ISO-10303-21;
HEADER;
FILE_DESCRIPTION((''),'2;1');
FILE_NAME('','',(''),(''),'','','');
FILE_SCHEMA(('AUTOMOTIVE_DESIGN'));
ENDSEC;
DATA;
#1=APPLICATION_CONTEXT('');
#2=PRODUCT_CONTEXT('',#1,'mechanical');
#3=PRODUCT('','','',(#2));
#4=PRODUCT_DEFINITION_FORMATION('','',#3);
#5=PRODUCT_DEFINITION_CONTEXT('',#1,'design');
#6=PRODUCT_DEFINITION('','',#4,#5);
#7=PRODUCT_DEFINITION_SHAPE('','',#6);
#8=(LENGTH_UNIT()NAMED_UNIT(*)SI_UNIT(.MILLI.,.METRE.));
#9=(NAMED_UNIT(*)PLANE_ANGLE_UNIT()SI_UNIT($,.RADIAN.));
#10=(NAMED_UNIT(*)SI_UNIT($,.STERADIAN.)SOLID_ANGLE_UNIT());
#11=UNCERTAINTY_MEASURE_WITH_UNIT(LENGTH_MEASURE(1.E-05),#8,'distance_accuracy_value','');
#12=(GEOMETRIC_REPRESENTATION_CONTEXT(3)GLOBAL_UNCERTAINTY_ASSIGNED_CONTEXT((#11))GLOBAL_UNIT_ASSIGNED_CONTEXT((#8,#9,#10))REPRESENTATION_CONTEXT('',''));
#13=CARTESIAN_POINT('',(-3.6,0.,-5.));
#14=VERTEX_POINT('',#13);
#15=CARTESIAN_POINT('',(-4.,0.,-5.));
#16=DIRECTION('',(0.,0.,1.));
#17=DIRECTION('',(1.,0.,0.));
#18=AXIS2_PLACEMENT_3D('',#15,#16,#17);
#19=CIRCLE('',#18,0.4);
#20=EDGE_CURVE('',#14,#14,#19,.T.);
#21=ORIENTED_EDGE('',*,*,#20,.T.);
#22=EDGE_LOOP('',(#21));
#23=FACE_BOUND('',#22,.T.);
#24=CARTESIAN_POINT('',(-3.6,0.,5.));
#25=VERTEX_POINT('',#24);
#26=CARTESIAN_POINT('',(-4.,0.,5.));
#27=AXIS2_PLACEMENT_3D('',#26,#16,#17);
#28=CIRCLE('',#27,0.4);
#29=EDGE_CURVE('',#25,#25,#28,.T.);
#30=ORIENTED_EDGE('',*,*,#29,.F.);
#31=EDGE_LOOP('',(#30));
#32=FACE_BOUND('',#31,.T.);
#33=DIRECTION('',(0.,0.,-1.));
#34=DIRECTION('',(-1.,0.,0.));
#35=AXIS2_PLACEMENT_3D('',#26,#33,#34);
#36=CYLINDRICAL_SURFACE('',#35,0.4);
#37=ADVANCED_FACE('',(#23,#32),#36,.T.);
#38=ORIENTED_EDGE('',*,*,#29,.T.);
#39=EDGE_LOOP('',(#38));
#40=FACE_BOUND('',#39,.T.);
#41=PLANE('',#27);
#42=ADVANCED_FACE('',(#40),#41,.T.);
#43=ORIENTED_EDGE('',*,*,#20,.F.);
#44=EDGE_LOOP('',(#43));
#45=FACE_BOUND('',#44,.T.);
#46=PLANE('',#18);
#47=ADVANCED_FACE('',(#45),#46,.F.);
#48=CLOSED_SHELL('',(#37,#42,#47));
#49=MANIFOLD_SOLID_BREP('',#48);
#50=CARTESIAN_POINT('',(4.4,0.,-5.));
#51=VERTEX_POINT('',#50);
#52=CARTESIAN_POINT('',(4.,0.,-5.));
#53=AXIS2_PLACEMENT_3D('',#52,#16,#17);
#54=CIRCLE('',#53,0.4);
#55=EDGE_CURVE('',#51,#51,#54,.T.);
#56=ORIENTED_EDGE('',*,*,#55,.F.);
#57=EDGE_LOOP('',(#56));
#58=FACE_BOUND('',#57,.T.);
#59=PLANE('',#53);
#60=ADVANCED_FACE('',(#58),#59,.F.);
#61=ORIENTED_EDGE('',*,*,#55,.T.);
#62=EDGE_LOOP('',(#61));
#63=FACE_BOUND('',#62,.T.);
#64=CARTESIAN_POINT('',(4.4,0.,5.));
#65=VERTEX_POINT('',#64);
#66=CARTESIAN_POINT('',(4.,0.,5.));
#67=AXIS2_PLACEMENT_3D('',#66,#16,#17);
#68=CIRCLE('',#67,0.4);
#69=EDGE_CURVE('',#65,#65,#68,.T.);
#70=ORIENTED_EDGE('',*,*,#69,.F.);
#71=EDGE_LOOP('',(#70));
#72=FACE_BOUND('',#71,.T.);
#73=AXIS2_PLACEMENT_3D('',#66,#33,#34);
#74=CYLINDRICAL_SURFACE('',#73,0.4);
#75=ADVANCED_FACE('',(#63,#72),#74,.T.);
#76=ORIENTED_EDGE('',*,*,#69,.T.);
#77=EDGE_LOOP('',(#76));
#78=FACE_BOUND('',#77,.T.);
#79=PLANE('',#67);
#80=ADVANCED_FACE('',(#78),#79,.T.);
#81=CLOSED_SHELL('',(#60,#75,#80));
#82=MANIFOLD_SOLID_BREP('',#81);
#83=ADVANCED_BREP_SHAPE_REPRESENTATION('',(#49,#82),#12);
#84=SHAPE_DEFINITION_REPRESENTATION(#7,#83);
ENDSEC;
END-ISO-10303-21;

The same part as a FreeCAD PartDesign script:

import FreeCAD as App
import Part
import Sketcher

doc = App.newDocument("Part")
body = doc.addObject("PartDesign::Body", "Body")

# Sketch on XY plane
sketch1 = body.newObject("Sketcher::SketchObject", "Sketch")
sketch1.AttachmentSupport = (doc.getObject("XY_Plane"), [""])
sketch1.MapMode = "FlatFace"
sketch1.addGeometry(Part.Circle(App.Vector(-4, 0, 0), App.Vector(0, 0, 1), 0.4), False)
sketch1.addConstraint([
    Sketcher.Constraint("PointOnObject", 0, 3, -1),
    Sketcher.Constraint("Diameter", 0, 0.8),
    Sketcher.Constraint("DistanceX", 0, 3, -1, 1, 4.0),
])
pad1 = body.newObject("PartDesign::Pad", "Pad")
pad1.Profile = sketch1
pad1.Length = 10
pad1.Midplane = True
body2 = doc.addObject("PartDesign::Body", "Body001")

# Sketch on XY plane
sketch2 = body2.newObject("Sketcher::SketchObject", "Sketch001")
sketch2.AttachmentSupport = (doc.getObject("XY_Plane001"), [""])
sketch2.MapMode = "FlatFace"
sketch2.addGeometry(Part.Circle(App.Vector(4, 0, 0), App.Vector(0, 0, 1), 0.4), False)
sketch2.addConstraint([
    Sketcher.Constraint("PointOnObject", 0, 3, -1),
    Sketcher.Constraint("Diameter", 0, 0.8),
    Sketcher.Constraint("DistanceX", -1, 1, 0, 3, 4.0),
])
pad2 = body2.newObject("PartDesign::Pad", "Pad001")
pad2.Profile = sketch2
pad2.Length = 10
pad2.Midplane = True

doc.recompute()
